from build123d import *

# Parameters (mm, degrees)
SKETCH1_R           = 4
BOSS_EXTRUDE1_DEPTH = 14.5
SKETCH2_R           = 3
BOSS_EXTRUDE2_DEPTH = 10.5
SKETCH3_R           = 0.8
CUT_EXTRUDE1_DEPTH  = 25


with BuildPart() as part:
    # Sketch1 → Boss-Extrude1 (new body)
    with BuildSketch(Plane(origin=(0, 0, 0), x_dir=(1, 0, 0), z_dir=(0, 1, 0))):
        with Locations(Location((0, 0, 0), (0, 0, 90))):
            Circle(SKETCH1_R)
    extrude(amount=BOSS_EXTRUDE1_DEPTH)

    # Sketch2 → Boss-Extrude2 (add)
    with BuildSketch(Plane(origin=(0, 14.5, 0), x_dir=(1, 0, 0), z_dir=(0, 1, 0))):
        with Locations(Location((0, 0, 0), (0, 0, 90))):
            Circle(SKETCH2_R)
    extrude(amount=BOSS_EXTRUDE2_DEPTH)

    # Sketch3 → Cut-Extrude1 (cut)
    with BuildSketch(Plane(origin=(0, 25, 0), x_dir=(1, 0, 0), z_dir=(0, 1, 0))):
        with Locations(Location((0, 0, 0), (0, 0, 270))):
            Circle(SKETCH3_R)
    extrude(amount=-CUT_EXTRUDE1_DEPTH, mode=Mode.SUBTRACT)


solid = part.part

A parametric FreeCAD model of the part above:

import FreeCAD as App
import Part
import Sketcher
from FreeCAD import Vector
Q = App.Units.Quantity

doc = App.newDocument("Part")
body = doc.addObject("PartDesign::Body", "Body")

# Sketch on XZ plane
sketch1 = doc.addObject("Sketcher::SketchObject", "Sketch")
body.addObject(sketch1)
sketch1.AttachmentSupport = (doc.XZ_Plane, [""])
sketch1.MapMode = "FlatFace"
sketch1.addGeometry(Part.Circle(Vector(0, 0, 0), Vector(0, 0, 1), 4), False)
sketch1.addConstraint(Sketcher.Constraint("Coincident", 0, 3, -1, 1))
sketch1.addConstraint(Sketcher.Constraint("Diameter", 0, Q("8 mm")))
pad1 = doc.addObject("PartDesign::Pad", "Pad")
body.addObject(pad1)
pad1.Profile = sketch1
pad1.Length = 14.5
pad1.Reversed = True

# Sketch on XZ plane
sketch2 = doc.addObject("Sketcher::SketchObject", "Sketch001")
body.addObject(sketch2)
sketch2.AttachmentSupport = (doc.XZ_Plane, [""])
sketch2.MapMode = "FlatFace"
sketch2.AttachmentOffset = App.Placement(Vector(0, 0, -14.5), App.Rotation())
sketch2.addGeometry(Part.Circle(Vector(0, 0, 0), Vector(0, 0, 1), 3), False)
sketch2.addConstraint(Sketcher.Constraint("Coincident", 0, 3, -1, 1))
sketch2.addConstraint(Sketcher.Constraint("Diameter", 0, Q("6 mm")))
pad2 = doc.addObject("PartDesign::Pad", "Pad001")
body.addObject(pad2)
pad2.Profile = sketch2
pad2.Length = 10.5
pad2.Reversed = True

# Sketch on XZ plane
sketch3 = doc.addObject("Sketcher::SketchObject", "Sketch002")
body.addObject(sketch3)
sketch3.AttachmentSupport = (doc.XZ_Plane, [""])
sketch3.MapMode = "FlatFace"
sketch3.AttachmentOffset = App.Placement(Vector(0, 0, -25), App.Rotation())
sketch3.addGeometry(Part.Circle(Vector(0, 0, 0), Vector(0, 0, 1), 0.8), False)
sketch3.addConstraint(Sketcher.Constraint("Coincident", 0, 3, -1, 1))
sketch3.addConstraint(Sketcher.Constraint("Diameter", 0, Q("1.6 mm")))
pocket1 = doc.addObject("PartDesign::Pocket", "Pocket")
body.addObject(pocket1)
pocket1.Profile = sketch3
pocket1.Length = 25
pocket1.Reversed = True

doc.recompute()
